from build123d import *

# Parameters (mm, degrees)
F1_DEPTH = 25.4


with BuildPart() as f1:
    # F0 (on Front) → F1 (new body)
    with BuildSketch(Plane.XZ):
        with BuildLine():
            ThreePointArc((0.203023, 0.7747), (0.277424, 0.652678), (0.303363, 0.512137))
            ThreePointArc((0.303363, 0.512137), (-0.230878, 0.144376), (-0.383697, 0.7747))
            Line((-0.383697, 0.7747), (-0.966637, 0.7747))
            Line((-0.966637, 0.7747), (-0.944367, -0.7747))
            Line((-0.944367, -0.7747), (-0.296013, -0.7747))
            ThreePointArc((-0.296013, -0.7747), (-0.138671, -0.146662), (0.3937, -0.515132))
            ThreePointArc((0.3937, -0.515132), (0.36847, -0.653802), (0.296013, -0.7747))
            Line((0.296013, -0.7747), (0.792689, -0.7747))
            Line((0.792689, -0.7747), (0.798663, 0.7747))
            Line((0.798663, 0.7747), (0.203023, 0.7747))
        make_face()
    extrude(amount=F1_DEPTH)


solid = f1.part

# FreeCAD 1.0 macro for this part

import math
import FreeCAD as App
import Part
import Sketcher
Q = App.Units.Quantity

doc = App.newDocument("Part")
body = doc.addObject("PartDesign::Body", "Body")

sketch1 = body.newObject("Sketcher::SketchObject", "Sketch")
sketch1.AttachmentSupport = (doc.getObject("XZ_Plane"), [""])
sketch1.MapMode = "FlatFace"
sketch1.addGeometry([
    Part.ArcOfCircle(Part.Circle(App.Vector(-0.09, 0.51, 0), App.Vector(0, 0, 1), 0.39), math.radians(0), math.radians(42)),
    Part.ArcOfCircle(Part.Circle(App.Vector(-0.09, 0.51, 0), App.Vector(0, 0, 1), 0.39), math.radians(138), math.radians(360)),
    Part.LineSegment(App.Vector(-0.38, 0.77, 0), App.Vector(-0.97, 0.77, 0)),
    Part.LineSegment(App.Vector(-0.97, 0.77, 0), App.Vector(-0.94, -0.77, 0)),
    Part.LineSegment(App.Vector(-0.94, -0.77, 0), App.Vector(-0.3, -0.77, 0)),
    Part.ArcOfCircle(Part.Circle(App.Vector(0, -0.52, 0), App.Vector(0, 0, 1), 0.39), math.radians(0), math.radians(221)),
    Part.ArcOfCircle(Part.Circle(App.Vector(0, -0.52, 0), App.Vector(0, 0, 1), 0.39), math.radians(-41), math.radians(0)),
    Part.LineSegment(App.Vector(0.3, -0.77, 0), App.Vector(0.79, -0.77, 0)),
    Part.LineSegment(App.Vector(0.79, -0.77, 0), App.Vector(0.8, 0.77, 0)),
    Part.LineSegment(App.Vector(0.8, 0.77, 0), App.Vector(0.2, 0.77, 0)),
], False)
sketch1.addConstraint([
    Sketcher.Constraint("Coincident", 0, 1, 1, 2),
    Sketcher.Constraint("Coincident", 1, 1, 2, 1),
    Sketcher.Constraint("Coincident", 2, 2, 3, 1),
    Sketcher.Constraint("Coincident", 3, 2, 4, 1),
    Sketcher.Constraint("Coincident", 4, 2, 5, 2),
    Sketcher.Constraint("Tangent", 5, 1, 6, 2),
    Sketcher.Constraint("Coincident", 6, 1, 7, 1),
    Sketcher.Constraint("Coincident", 7, 2, 8, 1),
    Sketcher.Constraint("Coincident", 8, 2, 9, 1),
    Sketcher.Constraint("Coincident", 9, 2, 0, 2),
    Sketcher.Constraint("Horizontal", 2),
    Sketcher.Constraint("Horizontal", 4),
    Sketcher.Constraint("Horizontal", 7),
    Sketcher.Constraint("Horizontal", 9),
    Sketcher.Constraint("Coincident", 1, 3, 0, 3),
    Sketcher.Constraint("Equal", 1, 5),
    Sketcher.Constraint("Equal", 5, 6),
    Sketcher.Constraint("Symmetric", 4, 2, 6, 1, -2),
    Sketcher.Constraint("Horizontal", 1, 3, 0, 1),
    Sketcher.Constraint("Horizontal", 6, 3, 5, 1),
    Sketcher.Constraint("Horizontal", 2, 2, 8, 2),
    Sketcher.Constraint("Radius", 1, Q("0.0155 in")),
    Sketcher.Constraint("DistanceX", 2, 2, 0, 1, Q("0.05 in")),
    Sketcher.Constraint("DistanceY", 3, 2, 2, 2, Q("0.061 in")),
    Sketcher.Constraint("DistanceX", 1, 3, 8, 2, Q("0.035 in")),
    Sketcher.Constraint("DistanceY", -1, 1, 1, 1, Q("0.0305 in")),
    Sketcher.Constraint("DistanceX", 2, 2, 2, 1, 0.58294),
    Sketcher.Constraint("DistanceX", 1, 1, 6, 3, 0.383698),
    Sketcher.Constraint("Distance", 3, 1.54956),
    Sketcher.Constraint("DistanceX", 4, 1, 4, 2, 0.648354),
    Sketcher.Constraint("DistanceX", 7, 1, 7, 2, 0.496676),
])
pad1 = body.newObject("PartDesign::Pad", "Pad")
pad1.Profile = sketch1
pad1.Length = Q("1 in")

doc.recompute()
